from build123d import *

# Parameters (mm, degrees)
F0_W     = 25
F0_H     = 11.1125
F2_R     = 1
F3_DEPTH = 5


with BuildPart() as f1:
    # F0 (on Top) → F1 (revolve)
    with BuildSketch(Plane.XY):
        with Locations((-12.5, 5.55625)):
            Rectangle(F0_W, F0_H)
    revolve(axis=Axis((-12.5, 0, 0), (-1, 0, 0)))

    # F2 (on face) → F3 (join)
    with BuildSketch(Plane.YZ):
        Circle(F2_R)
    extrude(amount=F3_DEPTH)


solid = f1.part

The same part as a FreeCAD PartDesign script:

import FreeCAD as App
import Part
import Sketcher
from FreeCAD import Vector
Q = App.Units.Quantity


def add_polygon(sketch, points):
    """Adds a closed chain of lines whose ends are joined by coincident constraints."""
    first, n = sketch.GeometryCount, len(points)
    for a, b in zip(points, points[1:] + points[:1]):
        sketch.addGeometry(Part.LineSegment(App.Vector(*a, 0), App.Vector(*b, 0)), False)
    for i in range(n):
        sketch.addConstraint(Sketcher.Constraint("Coincident", first + i, 2, first + (i + 1) % n, 1))

doc = App.newDocument("Part")
body = doc.addObject("PartDesign::Body", "Body")

# Sketch on XY plane
sketch1 = body.newObject("Sketcher::SketchObject", "Sketch")
sketch1.AttachmentSupport = (doc.getObject("XY_Plane"), [""])
sketch1.MapMode = "FlatFace"
add_polygon(sketch1, [(-25, 11), (-25, 0), (0, 0), (0, 11)])  # lines 0-3
sketch1.addConstraint([
    Sketcher.Constraint("Vertical", 0),
    Sketcher.Constraint("Horizontal", 1),
    Sketcher.Constraint("Vertical", 2),
    Sketcher.Constraint("Horizontal", 3),
    Sketcher.Constraint("Coincident", 1, 2, -1, 1),
    Sketcher.Constraint("DistanceX", 1, 1, 1, 2, Q("25 mm")),
    Sketcher.Constraint("DistanceY", 0, 2, 0, 1, Q("11.1125 mm")),
])
revolution = body.newObject("PartDesign::Revolution", "Revolution")
revolution.Profile = sketch1
revolution.ReferenceAxis = (sketch1, ["H_Axis"])
revolution.Angle = 360

# Sketch on YZ plane
sketch2 = body.newObject("Sketcher::SketchObject", "Sketch001")
sketch2.AttachmentSupport = (doc.getObject("YZ_Plane"), [""])
sketch2.MapMode = "FlatFace"
sketch2.addGeometry(Part.Circle(Vector(0, 0, 0), Vector(0, 0, 1), 1), False)
sketch2.addConstraint([
    Sketcher.Constraint("Coincident", 0, 3, -1, 1),
    Sketcher.Constraint("Diameter", 0, Q("2 mm")),
])
pad1 = body.newObject("PartDesign::Pad", "Pad")
pad1.Profile = sketch2
pad1.Length = 5

doc.recompute()
